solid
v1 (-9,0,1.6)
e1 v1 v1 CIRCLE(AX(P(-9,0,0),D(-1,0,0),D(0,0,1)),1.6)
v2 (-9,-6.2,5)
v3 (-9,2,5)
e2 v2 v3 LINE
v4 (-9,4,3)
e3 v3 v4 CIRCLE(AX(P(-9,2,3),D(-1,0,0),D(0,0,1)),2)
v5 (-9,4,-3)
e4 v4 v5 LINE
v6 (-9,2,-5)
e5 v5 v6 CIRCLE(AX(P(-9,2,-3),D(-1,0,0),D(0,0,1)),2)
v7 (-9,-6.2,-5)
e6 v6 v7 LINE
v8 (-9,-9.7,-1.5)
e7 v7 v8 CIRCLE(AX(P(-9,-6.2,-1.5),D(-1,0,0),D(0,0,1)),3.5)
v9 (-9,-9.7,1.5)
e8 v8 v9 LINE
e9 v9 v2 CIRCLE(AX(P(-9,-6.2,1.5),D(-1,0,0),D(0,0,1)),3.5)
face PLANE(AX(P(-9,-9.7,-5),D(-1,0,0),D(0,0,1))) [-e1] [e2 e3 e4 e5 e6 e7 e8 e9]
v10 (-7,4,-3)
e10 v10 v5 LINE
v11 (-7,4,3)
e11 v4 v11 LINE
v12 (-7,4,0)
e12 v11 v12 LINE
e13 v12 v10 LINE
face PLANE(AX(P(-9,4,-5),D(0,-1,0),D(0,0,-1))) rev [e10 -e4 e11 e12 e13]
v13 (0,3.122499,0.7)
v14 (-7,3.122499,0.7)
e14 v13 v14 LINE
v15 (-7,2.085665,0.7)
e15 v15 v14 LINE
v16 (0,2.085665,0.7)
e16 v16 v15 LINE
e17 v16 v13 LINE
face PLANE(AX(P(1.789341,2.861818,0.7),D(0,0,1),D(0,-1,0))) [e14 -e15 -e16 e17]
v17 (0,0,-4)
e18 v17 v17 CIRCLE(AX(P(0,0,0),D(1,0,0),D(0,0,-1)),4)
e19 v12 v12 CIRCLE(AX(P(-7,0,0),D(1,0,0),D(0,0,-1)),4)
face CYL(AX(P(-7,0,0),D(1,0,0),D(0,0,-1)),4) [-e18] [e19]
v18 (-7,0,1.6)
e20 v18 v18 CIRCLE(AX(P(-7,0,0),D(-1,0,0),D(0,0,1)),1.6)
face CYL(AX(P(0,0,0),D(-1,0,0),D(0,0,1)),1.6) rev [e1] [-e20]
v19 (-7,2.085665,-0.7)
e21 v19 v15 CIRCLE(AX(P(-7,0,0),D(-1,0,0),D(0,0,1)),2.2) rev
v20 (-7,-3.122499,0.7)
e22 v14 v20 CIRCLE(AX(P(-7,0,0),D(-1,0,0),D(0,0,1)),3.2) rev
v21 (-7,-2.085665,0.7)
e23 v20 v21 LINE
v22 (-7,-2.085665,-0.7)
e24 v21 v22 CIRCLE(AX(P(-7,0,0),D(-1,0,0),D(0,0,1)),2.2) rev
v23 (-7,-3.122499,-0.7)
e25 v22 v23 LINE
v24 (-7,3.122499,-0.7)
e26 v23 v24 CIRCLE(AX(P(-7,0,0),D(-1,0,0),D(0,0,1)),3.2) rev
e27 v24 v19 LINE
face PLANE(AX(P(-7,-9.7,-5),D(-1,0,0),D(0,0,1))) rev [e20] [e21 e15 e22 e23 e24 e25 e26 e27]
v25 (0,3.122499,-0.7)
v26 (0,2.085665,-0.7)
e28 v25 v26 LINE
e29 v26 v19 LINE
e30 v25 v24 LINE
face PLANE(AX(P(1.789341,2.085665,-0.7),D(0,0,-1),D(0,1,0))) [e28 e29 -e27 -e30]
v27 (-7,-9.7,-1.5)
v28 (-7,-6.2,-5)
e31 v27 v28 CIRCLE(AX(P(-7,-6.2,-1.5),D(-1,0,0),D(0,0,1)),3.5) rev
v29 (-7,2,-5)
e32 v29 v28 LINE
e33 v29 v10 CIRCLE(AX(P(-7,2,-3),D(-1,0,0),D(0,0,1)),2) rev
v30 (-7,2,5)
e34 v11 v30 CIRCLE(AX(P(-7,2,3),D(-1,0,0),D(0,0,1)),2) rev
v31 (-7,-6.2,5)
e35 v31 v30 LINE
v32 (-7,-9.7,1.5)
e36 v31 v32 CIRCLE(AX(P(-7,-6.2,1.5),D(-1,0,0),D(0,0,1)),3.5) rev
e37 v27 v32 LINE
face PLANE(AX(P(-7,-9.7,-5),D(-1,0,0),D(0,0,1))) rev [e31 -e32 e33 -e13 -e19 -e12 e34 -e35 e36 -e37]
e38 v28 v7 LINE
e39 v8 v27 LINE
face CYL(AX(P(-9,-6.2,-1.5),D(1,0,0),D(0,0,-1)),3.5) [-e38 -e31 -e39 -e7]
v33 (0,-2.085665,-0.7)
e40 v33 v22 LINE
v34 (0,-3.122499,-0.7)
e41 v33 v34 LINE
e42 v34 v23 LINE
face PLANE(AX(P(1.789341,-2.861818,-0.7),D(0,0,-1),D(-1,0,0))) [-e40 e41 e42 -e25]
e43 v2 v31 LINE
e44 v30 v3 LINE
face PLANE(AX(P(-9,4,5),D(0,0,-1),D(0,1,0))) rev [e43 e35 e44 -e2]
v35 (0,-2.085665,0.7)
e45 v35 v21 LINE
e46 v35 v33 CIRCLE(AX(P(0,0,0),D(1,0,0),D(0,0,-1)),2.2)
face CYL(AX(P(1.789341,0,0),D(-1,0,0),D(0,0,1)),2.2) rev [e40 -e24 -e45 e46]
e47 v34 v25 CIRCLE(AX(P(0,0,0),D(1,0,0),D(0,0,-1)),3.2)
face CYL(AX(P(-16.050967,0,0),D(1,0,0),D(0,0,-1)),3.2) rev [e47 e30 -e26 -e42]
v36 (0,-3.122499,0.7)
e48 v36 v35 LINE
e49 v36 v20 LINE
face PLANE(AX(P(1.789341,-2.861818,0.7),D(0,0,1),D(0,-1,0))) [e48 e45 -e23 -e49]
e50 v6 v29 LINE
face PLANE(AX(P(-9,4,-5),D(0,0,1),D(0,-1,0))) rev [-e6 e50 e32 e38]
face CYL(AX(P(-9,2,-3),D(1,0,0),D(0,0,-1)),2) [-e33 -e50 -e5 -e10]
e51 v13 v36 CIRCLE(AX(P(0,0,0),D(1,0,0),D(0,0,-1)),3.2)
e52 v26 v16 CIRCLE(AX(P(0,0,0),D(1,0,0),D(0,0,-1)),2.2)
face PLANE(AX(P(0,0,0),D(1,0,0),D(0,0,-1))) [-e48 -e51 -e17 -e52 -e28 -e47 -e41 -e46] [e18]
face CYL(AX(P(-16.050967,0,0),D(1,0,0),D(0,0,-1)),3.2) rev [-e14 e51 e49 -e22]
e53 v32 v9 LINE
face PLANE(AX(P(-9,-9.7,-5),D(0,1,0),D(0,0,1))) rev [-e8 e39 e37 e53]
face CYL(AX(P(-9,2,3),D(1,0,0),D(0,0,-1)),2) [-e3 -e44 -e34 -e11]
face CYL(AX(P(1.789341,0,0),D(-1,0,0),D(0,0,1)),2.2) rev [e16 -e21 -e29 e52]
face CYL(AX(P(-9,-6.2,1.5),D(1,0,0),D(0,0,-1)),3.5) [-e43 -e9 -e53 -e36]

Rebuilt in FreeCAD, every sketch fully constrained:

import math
import FreeCAD as App
import Part
import Sketcher

V = App.Vector


def edges_at(feature, points):
    """Names of the edges that pass closest to the given points."""
    edges = feature.Shape.Edges
    near = lambda p: min(range(len(edges)), key=lambda i: edges[i].distToShape(Part.Vertex(*p))[0])
    return sorted({f"Edge{near(p) + 1}" for p in points})


def add_polygon(sketch, points):
    """Adds a closed chain of lines whose ends are joined by coincident constraints."""
    first, n = sketch.GeometryCount, len(points)
    for a, b in zip(points, points[1:] + points[:1]):
        sketch.addGeometry(Part.LineSegment(App.Vector(*a, 0), App.Vector(*b, 0)), False)
    for i in range(n):
        sketch.addConstraint(Sketcher.Constraint("Coincident", first + i, 2, first + (i + 1) % n, 1))

doc = App.newDocument("Part")
body = doc.addObject("PartDesign::Body", "Body")

sketch1 = body.newObject("Sketcher::SketchObject", "Sketch")
sketch1.AttachmentSupport = (doc.getObject("YZ_Plane"), [""])
sketch1.MapMode = "FlatFace"
sketch1.addGeometry(Part.Circle(V(0, 0, 0), V(0, 0, 1), 4), False)
sketch1.addConstraint(Sketcher.Constraint("Coincident", 0, 3, -1, 1))
sketch1.addConstraint(Sketcher.Constraint("Diameter", 0, 8.0))
pad1 = body.newObject("PartDesign::Pad", "Pad")
pad1.Profile = sketch1
pad1.Length = 7
pad1.Reversed = True

sketch2 = body.newObject("Sketcher::SketchObject", "Sketch001")
sketch2.AttachmentSupport = (doc.getObject("YZ_Plane"), [""])
sketch2.MapMode = "FlatFace"
sketch2.AttachmentOffset = App.Placement(V(0, 0, -7), App.Rotation())
add_polygon(sketch2, [(4, -5), (-9.7, -5), (-9.7, 5), (4, 5)])
sketch2.addConstraint(Sketcher.Constraint("Horizontal", 0))
sketch2.addConstraint(Sketcher.Constraint("Vertical", 1))
sketch2.addConstraint(Sketcher.Constraint("Horizontal", 2))
sketch2.addConstraint(Sketcher.Constraint("Vertical", 3))
sketch2.addConstraint(Sketcher.Constraint("DistanceY", 1, 1, 1, 2, 10.0))
sketch2.addConstraint(Sketcher.Constraint("DistanceX", 0, 2, 0, 1, 13.7))
sketch2.addConstraint(Sketcher.Constraint("DistanceY", 0, 2, -1, 1, 5.0))
sketch2.addConstraint(Sketcher.Constraint("DistanceX", -1, 1, 2, 2, 4.0))
pad2 = body.newObject("PartDesign::Pad", "Pad001")
pad2.Profile = sketch2
pad2.Length = 2
pad2.Reversed = True

sketch3 = body.newObject("Sketcher::SketchObject", "Sketch002")
sketch3.AttachmentSupport = (doc.getObject("YZ_Plane"), [""])
sketch3.MapMode = "FlatFace"
sketch3.addGeometry(Part.Circle(V(0, 0, 0), V(0, 0, 1), 3.2), False)
sketch3.addConstraint(Sketcher.Constraint("Coincident", 0, 3, -1, 1))
sketch3.addConstraint(Sketcher.Constraint("Diameter", 0, 6.4))
pocket1 = body.newObject("PartDesign::Pocket", "Pocket")
pocket1.Profile = sketch3
pocket1.Length = 7

sketch4 = body.newObject("Sketcher::SketchObject", "Sketch003")
sketch4.AttachmentSupport = (doc.getObject("YZ_Plane"), [""])
sketch4.MapMode = "FlatFace"
sketch4.AttachmentOffset = App.Placement(V(0, 0, -9), App.Rotation())
sketch4.addGeometry(Part.Circle(V(0, 0, 0), V(0, 0, 1), 1.6), False)
sketch4.addConstraint(Sketcher.Constraint("Coincident", 0, 3, -1, 1))
sketch4.addConstraint(Sketcher.Constraint("Diameter", 0, 3.2))
pocket2 = body.newObject("PartDesign::Pocket", "Pocket001")
pocket2.Profile = sketch4
pocket2.Type = "ThroughAll"
pocket2.Reversed = True

sketch5 = body.newObject("Sketcher::SketchObject", "Sketch004")
sketch5.AttachmentSupport = (doc.getObject("YZ_Plane"), [""])
sketch5.MapMode = "FlatFace"
sketch5.addGeometry(Part.ArcOfCircle(Part.Circle(V(0, 0, 0), V(0, 0, 1), 2.2), math.radians(161.446995), math.radians(198.553005)), False)
sketch5.addGeometry(Part.LineSegment(V(-2.085665, -0.7, 0), V(-3.122499, -0.7, 0)), False)
sketch5.addGeometry(Part.ArcOfCircle(Part.Circle(V(0, 0, 0), V(0, 0, 1), 3.2), math.radians(167.364375), math.radians(192.635625)), False)
sketch5.addGeometry(Part.LineSegment(V(-3.122499, 0.7, 0), V(-2.085665, 0.7, 0)), False)
sketch5.addGeometry(Part.LineSegment(V(3.122499, -0.7, 0), V(2.085665, -0.7, 0)), False)
sketch5.addGeometry(Part.ArcOfCircle(Part.Circle(V(0, 0, 0), V(0, 0, 1), 2.2), math.radians(-18.553005), math.radians(18.553005)), False)
sketch5.addGeometry(Part.LineSegment(V(2.085665, 0.7, 0), V(3.122499, 0.7, 0)), False)
sketch5.addGeometry(Part.ArcOfCircle(Part.Circle(V(0, 0, 0), V(0, 0, 1), 3.2), math.radians(-12.635625), math.radians(12.635625)), False)
sketch5.addConstraint(Sketcher.Constraint("Coincident", 0, 2, 1, 1))
sketch5.addConstraint(Sketcher.Constraint("Coincident", 1, 2, 2, 2))
sketch5.addConstraint(Sketcher.Constraint("Coincident", 2, 1, 3, 1))
sketch5.addConstraint(Sketcher.Constraint("Coincident", 3, 2, 0, 1))
sketch5.addConstraint(Sketcher.Constraint("Coincident", 4, 2, 5, 1))
sketch5.addConstraint(Sketcher.Constraint("Coincident", 5, 2, 6, 1))
sketch5.addConstraint(Sketcher.Constraint("Coincident", 6, 2, 7, 2))
sketch5.addConstraint(Sketcher.Constraint("Coincident", 7, 1, 4, 1))
sketch5.addConstraint(Sketcher.Constraint("Horizontal", 1))
sketch5.addConstraint(Sketcher.Constraint("Horizontal", 3))
sketch5.addConstraint(Sketcher.Constraint("Horizontal", 4))
sketch5.addConstraint(Sketcher.Constraint("Horizontal", 6))
sketch5.addConstraint(Sketcher.Constraint("Coincident", 0, 3, -1, 1))
sketch5.addConstraint(Sketcher.Constraint("Coincident", 2, 3, -1, 1))
sketch5.addConstraint(Sketcher.Constraint("Coincident", 5, 3, -1, 1))
sketch5.addConstraint(Sketcher.Constraint("Coincident", 7, 3, -1, 1))
sketch5.addConstraint(Sketcher.Constraint("Equal", 0, 5))
sketch5.addConstraint(Sketcher.Constraint("Equal", 2, 7))
sketch5.addConstraint(Sketcher.Constraint("Horizontal", 1, 2, 4, 2))
sketch5.addConstraint(Sketcher.Constraint("Horizontal", 3, 2, 5, 2))
sketch5.addConstraint(Sketcher.Constraint("Vertical", 1, 2, 2, 1))
sketch5.addConstraint(Sketcher.Constraint("Radius", 0, 2.2))
sketch5.addConstraint(Sketcher.Constraint("Radius", 2, 3.2))
sketch5.addConstraint(Sketcher.Constraint("DistanceY", 0, 2, -1, 1, 0.7))
pad3 = body.newObject("PartDesign::Pad", "Pad002")
pad3.Profile = sketch5
pad3.Length = 9
pad3.Reversed = True
doc.recompute()

fillet = body.newObject("PartDesign::Fillet", "Fillet")
fillet.Base = (pad3, edges_at(pad3, [(-8, 4, -5), (-8, 4, 5)]))
fillet.Radius = 2
doc.recompute()

fillet2 = body.newObject("PartDesign::Fillet", "Fillet001")
fillet2.Base = (fillet, edges_at(fillet, [(-8, -9.7, -5), (-8, -9.7, 5)]))
fillet2.Radius = 3.5

doc.recompute()
